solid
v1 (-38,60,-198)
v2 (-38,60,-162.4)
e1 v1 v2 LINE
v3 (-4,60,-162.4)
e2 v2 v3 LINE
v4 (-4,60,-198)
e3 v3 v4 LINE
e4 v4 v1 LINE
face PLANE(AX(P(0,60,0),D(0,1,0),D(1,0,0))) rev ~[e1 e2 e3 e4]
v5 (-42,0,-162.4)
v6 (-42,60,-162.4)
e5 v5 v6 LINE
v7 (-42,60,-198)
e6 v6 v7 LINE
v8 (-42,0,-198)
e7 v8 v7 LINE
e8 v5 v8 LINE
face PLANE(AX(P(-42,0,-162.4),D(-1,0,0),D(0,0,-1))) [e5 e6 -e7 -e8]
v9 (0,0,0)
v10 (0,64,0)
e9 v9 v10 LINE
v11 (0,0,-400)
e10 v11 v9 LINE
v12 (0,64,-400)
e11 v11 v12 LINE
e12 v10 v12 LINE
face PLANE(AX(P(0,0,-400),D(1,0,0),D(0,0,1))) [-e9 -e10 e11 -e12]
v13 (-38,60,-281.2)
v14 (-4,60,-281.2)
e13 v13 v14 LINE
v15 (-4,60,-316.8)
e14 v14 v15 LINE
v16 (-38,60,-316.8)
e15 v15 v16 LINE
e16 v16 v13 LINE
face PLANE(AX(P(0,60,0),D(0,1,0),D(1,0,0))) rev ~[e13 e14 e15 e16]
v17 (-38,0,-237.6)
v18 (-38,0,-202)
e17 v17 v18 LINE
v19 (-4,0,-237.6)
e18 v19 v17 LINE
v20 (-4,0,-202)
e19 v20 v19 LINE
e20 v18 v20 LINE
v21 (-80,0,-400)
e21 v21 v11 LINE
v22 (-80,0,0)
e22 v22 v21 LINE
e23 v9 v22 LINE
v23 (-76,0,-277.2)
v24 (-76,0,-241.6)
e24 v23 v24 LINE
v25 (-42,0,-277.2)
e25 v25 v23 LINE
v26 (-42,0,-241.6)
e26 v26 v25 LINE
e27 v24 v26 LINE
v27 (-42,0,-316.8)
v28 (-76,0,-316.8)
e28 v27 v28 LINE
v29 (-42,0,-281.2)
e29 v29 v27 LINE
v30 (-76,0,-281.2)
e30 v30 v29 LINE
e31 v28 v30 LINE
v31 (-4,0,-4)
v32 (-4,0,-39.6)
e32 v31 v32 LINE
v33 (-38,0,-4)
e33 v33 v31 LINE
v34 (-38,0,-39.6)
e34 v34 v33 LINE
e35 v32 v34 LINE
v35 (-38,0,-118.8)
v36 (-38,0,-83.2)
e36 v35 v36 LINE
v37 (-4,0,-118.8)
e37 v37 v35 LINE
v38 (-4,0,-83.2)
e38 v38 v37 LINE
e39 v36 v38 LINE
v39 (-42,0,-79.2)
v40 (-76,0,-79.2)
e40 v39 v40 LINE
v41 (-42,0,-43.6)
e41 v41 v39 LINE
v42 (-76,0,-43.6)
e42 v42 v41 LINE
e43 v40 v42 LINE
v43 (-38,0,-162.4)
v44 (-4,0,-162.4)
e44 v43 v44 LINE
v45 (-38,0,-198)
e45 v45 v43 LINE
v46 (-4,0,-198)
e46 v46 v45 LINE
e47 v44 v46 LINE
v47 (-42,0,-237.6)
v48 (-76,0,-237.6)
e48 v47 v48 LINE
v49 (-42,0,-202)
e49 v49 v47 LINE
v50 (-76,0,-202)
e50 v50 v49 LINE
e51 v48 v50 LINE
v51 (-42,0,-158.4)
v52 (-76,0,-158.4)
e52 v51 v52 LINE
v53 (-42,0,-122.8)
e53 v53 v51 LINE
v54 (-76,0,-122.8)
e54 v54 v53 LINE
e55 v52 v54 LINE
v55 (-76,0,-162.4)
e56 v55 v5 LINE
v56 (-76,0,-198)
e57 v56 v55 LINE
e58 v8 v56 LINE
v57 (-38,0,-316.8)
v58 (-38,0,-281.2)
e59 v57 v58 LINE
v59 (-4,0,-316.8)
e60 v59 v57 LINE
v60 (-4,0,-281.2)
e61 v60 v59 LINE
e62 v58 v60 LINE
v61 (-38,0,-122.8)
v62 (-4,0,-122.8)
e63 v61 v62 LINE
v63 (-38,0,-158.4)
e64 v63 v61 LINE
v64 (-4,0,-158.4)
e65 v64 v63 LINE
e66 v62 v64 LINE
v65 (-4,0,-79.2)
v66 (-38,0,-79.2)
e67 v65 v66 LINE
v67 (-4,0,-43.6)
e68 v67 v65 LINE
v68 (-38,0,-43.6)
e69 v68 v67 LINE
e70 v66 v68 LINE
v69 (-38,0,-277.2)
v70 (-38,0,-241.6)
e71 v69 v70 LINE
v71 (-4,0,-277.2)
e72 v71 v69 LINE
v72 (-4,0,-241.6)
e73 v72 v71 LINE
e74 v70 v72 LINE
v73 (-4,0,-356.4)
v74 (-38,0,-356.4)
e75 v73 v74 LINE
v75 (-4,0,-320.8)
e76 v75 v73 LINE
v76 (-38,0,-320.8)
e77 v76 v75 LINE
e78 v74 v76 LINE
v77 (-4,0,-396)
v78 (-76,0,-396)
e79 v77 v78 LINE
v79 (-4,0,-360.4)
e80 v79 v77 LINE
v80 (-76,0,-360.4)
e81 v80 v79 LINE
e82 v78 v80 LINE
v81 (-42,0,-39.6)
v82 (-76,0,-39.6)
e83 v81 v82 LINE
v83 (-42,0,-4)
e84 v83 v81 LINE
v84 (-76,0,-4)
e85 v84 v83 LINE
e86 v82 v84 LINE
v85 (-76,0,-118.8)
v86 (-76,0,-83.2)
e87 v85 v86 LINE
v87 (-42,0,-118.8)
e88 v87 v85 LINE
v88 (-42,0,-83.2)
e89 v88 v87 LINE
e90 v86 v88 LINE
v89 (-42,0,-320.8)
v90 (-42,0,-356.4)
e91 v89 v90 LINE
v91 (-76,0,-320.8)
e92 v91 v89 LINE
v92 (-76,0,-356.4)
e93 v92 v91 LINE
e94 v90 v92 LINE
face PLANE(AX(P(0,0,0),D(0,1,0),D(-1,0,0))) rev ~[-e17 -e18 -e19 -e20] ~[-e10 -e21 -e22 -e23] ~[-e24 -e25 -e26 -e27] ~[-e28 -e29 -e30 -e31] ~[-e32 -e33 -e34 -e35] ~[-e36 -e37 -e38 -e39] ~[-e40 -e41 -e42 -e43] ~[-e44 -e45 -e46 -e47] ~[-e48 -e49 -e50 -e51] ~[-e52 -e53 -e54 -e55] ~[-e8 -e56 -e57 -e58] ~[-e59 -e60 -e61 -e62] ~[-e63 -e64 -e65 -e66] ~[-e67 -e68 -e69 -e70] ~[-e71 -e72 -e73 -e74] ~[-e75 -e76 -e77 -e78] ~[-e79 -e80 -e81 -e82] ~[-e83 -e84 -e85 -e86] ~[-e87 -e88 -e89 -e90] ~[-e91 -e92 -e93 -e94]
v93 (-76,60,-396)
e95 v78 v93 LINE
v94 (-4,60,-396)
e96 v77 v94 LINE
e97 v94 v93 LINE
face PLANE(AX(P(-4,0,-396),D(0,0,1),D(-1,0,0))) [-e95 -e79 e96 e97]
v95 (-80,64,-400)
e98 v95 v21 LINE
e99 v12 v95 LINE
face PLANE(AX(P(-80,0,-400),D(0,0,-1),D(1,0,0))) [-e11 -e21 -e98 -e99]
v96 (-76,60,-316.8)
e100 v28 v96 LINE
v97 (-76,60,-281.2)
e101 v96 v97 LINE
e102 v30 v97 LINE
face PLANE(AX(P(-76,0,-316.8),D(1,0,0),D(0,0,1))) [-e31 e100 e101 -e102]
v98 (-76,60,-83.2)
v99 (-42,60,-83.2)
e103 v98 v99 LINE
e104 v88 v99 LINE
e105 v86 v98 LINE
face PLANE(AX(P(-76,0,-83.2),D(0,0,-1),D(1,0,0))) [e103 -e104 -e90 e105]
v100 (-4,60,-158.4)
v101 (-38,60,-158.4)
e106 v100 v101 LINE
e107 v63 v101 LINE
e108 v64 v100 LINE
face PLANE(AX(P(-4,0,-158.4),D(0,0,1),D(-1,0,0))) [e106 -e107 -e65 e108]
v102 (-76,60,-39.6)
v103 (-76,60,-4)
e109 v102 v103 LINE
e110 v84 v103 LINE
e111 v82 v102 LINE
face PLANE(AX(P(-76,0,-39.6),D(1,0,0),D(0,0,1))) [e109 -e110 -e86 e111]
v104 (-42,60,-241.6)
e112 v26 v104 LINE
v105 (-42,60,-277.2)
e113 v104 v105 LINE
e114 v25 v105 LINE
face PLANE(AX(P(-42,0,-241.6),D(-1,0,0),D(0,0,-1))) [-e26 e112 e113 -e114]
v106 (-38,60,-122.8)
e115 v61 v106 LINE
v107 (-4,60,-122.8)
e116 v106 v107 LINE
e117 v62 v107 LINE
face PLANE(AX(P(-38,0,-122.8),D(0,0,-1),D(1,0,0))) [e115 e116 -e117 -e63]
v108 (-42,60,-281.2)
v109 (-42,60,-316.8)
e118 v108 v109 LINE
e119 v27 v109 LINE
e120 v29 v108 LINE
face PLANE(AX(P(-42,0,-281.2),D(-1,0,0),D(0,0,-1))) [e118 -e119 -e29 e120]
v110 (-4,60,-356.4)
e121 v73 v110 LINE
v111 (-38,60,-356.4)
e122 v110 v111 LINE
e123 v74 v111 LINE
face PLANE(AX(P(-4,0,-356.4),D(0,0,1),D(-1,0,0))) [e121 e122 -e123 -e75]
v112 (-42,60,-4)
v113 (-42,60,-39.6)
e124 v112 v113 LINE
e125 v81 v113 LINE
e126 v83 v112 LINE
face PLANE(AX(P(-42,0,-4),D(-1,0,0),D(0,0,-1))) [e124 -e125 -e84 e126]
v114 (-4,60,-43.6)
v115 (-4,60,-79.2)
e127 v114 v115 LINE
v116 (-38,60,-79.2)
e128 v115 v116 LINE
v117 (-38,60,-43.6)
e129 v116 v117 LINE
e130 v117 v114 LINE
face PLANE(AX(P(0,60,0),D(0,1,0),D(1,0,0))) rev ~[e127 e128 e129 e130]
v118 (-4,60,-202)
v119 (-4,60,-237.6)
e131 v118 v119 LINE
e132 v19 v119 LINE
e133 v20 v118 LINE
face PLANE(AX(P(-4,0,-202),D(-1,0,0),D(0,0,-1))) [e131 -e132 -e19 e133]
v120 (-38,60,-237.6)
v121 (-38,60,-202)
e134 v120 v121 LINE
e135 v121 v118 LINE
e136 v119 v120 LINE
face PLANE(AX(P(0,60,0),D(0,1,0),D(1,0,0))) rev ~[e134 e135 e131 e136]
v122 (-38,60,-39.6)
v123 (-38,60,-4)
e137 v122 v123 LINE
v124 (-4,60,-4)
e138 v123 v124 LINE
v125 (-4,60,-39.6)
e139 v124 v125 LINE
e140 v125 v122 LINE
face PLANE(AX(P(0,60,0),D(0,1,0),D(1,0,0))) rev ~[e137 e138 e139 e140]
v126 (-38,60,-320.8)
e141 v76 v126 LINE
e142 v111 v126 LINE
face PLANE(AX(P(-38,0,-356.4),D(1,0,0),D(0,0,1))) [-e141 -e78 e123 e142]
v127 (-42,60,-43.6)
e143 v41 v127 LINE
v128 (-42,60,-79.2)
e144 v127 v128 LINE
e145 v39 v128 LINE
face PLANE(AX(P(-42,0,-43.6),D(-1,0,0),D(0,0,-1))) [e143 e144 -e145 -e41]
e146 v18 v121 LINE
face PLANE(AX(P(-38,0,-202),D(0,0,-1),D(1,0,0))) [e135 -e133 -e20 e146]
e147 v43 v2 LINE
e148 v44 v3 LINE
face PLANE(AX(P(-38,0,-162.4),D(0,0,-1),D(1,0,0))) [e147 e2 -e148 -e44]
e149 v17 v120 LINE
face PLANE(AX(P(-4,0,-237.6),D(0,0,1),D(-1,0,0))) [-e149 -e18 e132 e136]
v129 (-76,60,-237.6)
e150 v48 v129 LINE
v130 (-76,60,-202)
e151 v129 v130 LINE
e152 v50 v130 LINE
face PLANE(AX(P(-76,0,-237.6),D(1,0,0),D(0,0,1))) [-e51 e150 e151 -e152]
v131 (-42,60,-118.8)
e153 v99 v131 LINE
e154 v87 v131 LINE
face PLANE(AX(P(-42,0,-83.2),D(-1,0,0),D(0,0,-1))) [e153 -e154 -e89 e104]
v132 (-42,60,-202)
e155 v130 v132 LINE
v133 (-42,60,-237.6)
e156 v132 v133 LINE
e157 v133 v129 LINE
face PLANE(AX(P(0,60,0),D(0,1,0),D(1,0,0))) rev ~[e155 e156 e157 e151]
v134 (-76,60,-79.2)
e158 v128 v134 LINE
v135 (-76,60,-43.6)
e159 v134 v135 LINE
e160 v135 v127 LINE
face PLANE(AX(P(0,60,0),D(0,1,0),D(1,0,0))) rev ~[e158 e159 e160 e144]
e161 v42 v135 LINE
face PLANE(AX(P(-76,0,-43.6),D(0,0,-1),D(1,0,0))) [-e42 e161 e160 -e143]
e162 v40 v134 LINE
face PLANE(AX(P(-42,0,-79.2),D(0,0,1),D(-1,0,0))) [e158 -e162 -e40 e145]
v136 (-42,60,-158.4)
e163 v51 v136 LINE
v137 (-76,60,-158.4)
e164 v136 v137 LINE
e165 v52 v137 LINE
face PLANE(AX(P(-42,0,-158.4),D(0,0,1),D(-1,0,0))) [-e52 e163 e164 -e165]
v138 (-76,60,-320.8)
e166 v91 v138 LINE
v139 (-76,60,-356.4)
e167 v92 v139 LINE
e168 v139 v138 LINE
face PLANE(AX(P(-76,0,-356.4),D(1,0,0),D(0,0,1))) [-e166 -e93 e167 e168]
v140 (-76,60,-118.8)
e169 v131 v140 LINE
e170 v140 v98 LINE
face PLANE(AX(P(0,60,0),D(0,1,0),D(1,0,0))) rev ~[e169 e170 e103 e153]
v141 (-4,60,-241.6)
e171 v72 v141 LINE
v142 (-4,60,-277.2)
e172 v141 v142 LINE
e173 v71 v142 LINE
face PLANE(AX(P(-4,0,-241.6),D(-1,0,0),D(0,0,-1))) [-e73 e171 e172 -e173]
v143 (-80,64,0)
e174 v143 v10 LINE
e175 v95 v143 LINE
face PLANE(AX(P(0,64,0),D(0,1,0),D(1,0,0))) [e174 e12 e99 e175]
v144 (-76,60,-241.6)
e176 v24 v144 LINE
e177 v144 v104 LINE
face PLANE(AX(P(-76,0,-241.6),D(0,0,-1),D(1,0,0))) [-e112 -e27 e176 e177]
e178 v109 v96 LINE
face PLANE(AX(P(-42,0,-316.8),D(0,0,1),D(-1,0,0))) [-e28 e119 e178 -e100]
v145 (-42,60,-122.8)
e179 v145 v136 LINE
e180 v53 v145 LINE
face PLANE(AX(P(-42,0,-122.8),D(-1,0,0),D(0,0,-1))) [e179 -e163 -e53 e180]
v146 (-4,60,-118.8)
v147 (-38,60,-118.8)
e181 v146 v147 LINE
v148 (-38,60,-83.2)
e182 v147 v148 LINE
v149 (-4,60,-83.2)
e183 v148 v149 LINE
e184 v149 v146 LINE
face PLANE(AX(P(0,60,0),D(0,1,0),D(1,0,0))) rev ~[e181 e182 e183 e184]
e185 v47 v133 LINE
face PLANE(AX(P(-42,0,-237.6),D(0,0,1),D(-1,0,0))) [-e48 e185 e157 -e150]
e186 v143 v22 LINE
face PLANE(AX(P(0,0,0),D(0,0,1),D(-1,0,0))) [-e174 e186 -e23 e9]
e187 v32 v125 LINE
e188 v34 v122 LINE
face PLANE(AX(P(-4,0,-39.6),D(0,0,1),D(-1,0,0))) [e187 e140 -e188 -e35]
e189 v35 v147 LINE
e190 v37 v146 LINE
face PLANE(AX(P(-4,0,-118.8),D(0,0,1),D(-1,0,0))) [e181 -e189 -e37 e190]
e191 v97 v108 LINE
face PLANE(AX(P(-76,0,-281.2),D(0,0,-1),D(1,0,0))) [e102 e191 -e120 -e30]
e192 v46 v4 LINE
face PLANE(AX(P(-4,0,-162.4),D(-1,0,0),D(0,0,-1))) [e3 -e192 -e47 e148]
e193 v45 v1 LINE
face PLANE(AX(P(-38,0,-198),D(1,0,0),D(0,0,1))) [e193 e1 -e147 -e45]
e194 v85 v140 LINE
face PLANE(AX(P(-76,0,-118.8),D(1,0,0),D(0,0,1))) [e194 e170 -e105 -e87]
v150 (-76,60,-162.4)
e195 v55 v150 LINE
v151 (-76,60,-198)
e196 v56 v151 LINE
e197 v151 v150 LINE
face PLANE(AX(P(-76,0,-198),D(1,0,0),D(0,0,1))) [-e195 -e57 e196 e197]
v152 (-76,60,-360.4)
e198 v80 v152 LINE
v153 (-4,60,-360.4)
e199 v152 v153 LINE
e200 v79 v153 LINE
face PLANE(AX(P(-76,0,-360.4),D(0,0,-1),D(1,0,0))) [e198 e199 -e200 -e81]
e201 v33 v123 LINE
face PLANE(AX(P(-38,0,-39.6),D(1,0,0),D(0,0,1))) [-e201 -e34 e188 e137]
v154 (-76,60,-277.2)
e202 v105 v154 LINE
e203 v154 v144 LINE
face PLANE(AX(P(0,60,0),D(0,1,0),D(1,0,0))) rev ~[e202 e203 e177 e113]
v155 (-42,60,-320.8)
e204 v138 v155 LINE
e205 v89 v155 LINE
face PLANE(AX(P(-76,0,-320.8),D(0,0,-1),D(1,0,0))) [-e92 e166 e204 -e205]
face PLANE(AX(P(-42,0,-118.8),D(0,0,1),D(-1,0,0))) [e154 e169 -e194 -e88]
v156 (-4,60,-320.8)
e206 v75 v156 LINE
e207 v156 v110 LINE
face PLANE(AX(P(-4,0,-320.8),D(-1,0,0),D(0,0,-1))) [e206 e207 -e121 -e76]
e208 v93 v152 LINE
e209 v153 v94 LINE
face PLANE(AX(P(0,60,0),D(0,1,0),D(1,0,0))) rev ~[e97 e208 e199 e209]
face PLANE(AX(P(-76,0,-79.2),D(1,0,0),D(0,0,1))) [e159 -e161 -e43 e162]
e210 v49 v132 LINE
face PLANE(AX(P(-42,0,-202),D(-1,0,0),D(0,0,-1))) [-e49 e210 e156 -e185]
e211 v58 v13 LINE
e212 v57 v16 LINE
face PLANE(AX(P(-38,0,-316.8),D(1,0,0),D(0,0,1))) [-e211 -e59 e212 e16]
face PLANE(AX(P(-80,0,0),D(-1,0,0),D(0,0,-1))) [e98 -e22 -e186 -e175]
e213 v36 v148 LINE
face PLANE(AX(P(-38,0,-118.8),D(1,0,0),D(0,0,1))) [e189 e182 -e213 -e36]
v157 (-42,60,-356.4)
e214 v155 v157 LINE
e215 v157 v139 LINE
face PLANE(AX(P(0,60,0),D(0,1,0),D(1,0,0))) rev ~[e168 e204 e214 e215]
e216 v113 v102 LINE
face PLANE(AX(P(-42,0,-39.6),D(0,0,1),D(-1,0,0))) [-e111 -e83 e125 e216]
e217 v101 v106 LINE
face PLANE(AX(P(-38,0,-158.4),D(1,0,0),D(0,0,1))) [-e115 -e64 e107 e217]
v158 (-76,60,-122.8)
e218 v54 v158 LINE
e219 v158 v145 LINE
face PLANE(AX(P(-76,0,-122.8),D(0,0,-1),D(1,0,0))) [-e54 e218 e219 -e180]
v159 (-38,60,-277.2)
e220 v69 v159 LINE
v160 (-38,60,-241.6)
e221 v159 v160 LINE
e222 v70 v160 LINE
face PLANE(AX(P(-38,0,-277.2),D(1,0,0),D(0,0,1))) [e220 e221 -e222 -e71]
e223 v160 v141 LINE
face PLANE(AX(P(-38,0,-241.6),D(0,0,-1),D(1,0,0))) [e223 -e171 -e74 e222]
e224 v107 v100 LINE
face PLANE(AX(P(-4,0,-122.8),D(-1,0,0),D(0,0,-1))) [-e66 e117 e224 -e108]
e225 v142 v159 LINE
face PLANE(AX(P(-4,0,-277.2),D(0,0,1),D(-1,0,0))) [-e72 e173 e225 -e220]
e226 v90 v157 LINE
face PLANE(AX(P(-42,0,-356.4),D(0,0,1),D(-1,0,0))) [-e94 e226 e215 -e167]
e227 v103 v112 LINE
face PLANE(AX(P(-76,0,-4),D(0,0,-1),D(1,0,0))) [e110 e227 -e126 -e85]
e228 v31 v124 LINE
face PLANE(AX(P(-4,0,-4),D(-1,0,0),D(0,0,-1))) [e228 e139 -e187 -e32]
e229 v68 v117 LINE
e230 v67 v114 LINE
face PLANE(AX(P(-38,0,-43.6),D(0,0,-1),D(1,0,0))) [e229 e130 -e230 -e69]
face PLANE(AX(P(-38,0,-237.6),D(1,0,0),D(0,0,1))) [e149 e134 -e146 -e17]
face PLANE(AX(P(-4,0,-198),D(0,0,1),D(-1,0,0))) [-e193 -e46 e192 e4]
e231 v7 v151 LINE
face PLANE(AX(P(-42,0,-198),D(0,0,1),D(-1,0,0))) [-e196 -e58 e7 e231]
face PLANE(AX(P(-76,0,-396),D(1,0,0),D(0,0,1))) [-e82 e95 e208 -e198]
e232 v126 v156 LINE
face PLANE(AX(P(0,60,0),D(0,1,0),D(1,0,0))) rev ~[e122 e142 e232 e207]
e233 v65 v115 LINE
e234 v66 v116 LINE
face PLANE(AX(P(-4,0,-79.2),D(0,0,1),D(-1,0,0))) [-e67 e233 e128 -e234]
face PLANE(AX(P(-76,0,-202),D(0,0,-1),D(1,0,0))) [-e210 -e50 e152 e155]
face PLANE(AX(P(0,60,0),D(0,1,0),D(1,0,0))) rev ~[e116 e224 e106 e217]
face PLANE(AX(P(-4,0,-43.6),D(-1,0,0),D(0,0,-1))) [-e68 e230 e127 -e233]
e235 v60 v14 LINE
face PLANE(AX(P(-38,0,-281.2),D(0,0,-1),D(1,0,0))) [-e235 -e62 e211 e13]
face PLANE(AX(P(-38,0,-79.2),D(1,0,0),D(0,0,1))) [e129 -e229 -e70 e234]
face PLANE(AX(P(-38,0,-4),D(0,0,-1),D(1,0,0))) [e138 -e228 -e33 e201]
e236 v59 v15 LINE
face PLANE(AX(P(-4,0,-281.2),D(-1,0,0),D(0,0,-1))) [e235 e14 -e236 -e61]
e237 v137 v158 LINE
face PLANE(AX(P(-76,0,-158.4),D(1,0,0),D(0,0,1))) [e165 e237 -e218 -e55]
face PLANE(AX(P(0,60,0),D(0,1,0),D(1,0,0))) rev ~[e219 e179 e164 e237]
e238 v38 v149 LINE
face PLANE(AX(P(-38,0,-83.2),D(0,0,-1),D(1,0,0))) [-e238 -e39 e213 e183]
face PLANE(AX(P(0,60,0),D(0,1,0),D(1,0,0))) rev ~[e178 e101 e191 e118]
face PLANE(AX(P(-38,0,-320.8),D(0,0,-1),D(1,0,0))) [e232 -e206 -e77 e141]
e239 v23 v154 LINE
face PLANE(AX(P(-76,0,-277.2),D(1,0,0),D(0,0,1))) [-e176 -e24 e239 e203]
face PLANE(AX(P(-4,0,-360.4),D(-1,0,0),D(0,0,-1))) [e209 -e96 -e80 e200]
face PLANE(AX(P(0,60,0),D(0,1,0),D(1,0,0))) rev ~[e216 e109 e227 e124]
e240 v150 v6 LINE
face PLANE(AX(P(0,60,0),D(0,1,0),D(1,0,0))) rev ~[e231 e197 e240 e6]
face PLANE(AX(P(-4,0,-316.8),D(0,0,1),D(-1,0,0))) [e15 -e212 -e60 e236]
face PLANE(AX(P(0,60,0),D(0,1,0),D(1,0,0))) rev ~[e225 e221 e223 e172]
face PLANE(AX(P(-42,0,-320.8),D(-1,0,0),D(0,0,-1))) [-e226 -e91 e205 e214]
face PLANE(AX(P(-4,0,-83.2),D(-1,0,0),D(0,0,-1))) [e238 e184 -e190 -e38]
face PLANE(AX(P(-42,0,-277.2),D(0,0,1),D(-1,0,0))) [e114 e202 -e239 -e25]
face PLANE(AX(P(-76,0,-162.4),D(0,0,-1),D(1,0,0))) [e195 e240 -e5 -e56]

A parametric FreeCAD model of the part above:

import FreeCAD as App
import Part
import Sketcher

V = App.Vector

doc = App.newDocument("Part")
body = doc.addObject("PartDesign::Body", "Body")

sketch1 = body.newObject("Sketcher::SketchObject", "Sketch")
sketch1.AttachmentSupport = (doc.getObject("XZ_Plane"), [""])
sketch1.MapMode = "FlatFace"
sketch1.addGeometry(Part.LineSegment(V(-80, 0, 0), V(0, 0, 0)), False)
sketch1.addGeometry(Part.LineSegment(V(0, 0, 0), V(0, -400, 0)), False)
sketch1.addGeometry(Part.LineSegment(V(0, -400, 0), V(-80, -400, 0)), False)
sketch1.addGeometry(Part.LineSegment(V(-80, -400, 0), V(-80, 0, 0)), False)
sketch1.addGeometry(Part.LineSegment(V(-4, -321, 0), V(-38, -321, 0)), False)
sketch1.addGeometry(Part.LineSegment(V(-38, -321, 0), V(-38, -356, 0)), False)
sketch1.addGeometry(Part.LineSegment(V(-38, -356, 0), V(-4, -356, 0)), False)
sketch1.addGeometry(Part.LineSegment(V(-4, -356, 0), V(-4, -321, 0)), False)
sketch1.addGeometry(Part.LineSegment(V(-4, -281, 0), V(-38, -281, 0)), False)
sketch1.addGeometry(Part.LineSegment(V(-38, -281, 0), V(-38, -317, 0)), False)
sketch1.addGeometry(Part.LineSegment(V(-38, -317, 0), V(-4, -317, 0)), False)
sketch1.addGeometry(Part.LineSegment(V(-4, -317, 0), V(-4, -281, 0)), False)
sketch1.addGeometry(Part.LineSegment(V(-4, -242, 0), V(-38, -242, 0)), False)
sketch1.addGeometry(Part.LineSegment(V(-38, -242, 0), V(-38, -277, 0)), False)
sketch1.addGeometry(Part.LineSegment(V(-38, -277, 0), V(-4, -277, 0)), False)
sketch1.addGeometry(Part.LineSegment(V(-4, -277, 0), V(-4, -242, 0)), False)
sketch1.addGeometry(Part.LineSegment(V(-4, -202, 0), V(-38, -202, 0)), False)
sketch1.addGeometry(Part.LineSegment(V(-38, -202, 0), V(-38, -238, 0)), False)
sketch1.addGeometry(Part.LineSegment(V(-38, -238, 0), V(-4, -238, 0)), False)
sketch1.addGeometry(Part.LineSegment(V(-4, -238, 0), V(-4, -202, 0)), False)
sketch1.addGeometry(Part.LineSegment(V(-4, -360, 0), V(-76, -360, 0)), False)
sketch1.addGeometry(Part.LineSegment(V(-76, -360, 0), V(-76, -396, 0)), False)
sketch1.addGeometry(Part.LineSegment(V(-76, -396, 0), V(-4, -396, 0)), False)
sketch1.addGeometry(Part.LineSegment(V(-4, -396, 0), V(-4, -360, 0)), False)
sketch1.addGeometry(Part.LineSegment(V(-42, -321, 0), V(-76, -321, 0)), False)
sketch1.addGeometry(Part.LineSegment(V(-76, -321, 0), V(-76, -356, 0)), False)
sketch1.addGeometry(Part.LineSegment(V(-76, -356, 0), V(-42, -356, 0)), False)
sketch1.addGeometry(Part.LineSegment(V(-42, -356, 0), V(-42, -321, 0)), False)
sketch1.addGeometry(Part.LineSegment(V(-42, -281, 0), V(-76, -281, 0)), False)
sketch1.addGeometry(Part.LineSegment(V(-76, -281, 0), V(-76, -317, 0)), False)
sketch1.addGeometry(Part.LineSegment(V(-76, -317, 0), V(-42, -317, 0)), False)
sketch1.addGeometry(Part.LineSegment(V(-42, -317, 0), V(-42, -281, 0)), False)
sketch1.addGeometry(Part.LineSegment(V(-42, -242, 0), V(-76, -242, 0)), False)
sketch1.addGeometry(Part.LineSegment(V(-76, -242, 0), V(-76, -277, 0)), False)
sketch1.addGeometry(Part.LineSegment(V(-76, -277, 0), V(-42, -277, 0)), False)
sketch1.addGeometry(Part.LineSegment(V(-42, -277, 0), V(-42, -242, 0)), False)
sketch1.addGeometry(Part.LineSegment(V(-42, -202, 0), V(-76, -202, 0)), False)
sketch1.addGeometry(Part.LineSegment(V(-76, -202, 0), V(-76, -238, 0)), False)
sketch1.addGeometry(Part.LineSegment(V(-76, -238, 0), V(-42, -238, 0)), False)
sketch1.addGeometry(Part.LineSegment(V(-42, -238, 0), V(-42, -202, 0)), False)
sketch1.addGeometry(Part.LineSegment(V(-4, -162, 0), V(-38, -162, 0)), False)
sketch1.addGeometry(Part.LineSegment(V(-38, -162, 0), V(-38, -198, 0)), False)
sketch1.addGeometry(Part.LineSegment(V(-38, -198, 0), V(-4, -198, 0)), False)
sketch1.addGeometry(Part.LineSegment(V(-4, -198, 0), V(-4, -162, 0)), False)
sketch1.addGeometry(Part.LineSegment(V(-4, -123, 0), V(-38, -123, 0)), False)
sketch1.addGeometry(Part.LineSegment(V(-38, -123, 0), V(-38, -158, 0)), False)
sketch1.addGeometry(Part.LineSegment(V(-38, -158, 0), V(-4, -158, 0)), False)
sketch1.addGeometry(Part.LineSegment(V(-4, -158, 0), V(-4, -123, 0)), False)
sketch1.addGeometry(Part.LineSegment(V(-4, -83, 0), V(-38, -83, 0)), False)
sketch1.addGeometry(Part.LineSegment(V(-38, -83, 0), V(-38, -119, 0)), False)
sketch1.addGeometry(Part.LineSegment(V(-38, -119, 0), V(-4, -119, 0)), False)
sketch1.addGeometry(Part.LineSegment(V(-4, -119, 0), V(-4, -83, 0)), False)
sketch1.addGeometry(Part.LineSegment(V(-4, -44, 0), V(-38, -44, 0)), False)
sketch1.addGeometry(Part.LineSegment(V(-38, -44, 0), V(-38, -79, 0)), False)
sketch1.addGeometry(Part.LineSegment(V(-38, -79, 0), V(-4, -79, 0)), False)
sketch1.addGeometry(Part.LineSegment(V(-4, -79, 0), V(-4, -44, 0)), False)
sketch1.addGeometry(Part.LineSegment(V(-4, -4, 0), V(-38, -4, 0)), False)
sketch1.addGeometry(Part.LineSegment(V(-38, -4, 0), V(-38, -40, 0)), False)
sketch1.addGeometry(Part.LineSegment(V(-38, -40, 0), V(-4, -40, 0)), False)
sketch1.addGeometry(Part.LineSegment(V(-4, -40, 0), V(-4, -4, 0)), False)
sketch1.addGeometry(Part.LineSegment(V(-42, -162, 0), V(-76, -162, 0)), False)
sketch1.addGeometry(Part.LineSegment(V(-76, -162, 0), V(-76, -198, 0)), False)
sketch1.addGeometry(Part.LineSegment(V(-76, -198, 0), V(-42, -198, 0)), False)
sketch1.addGeometry(Part.LineSegment(V(-42, -198, 0), V(-42, -162, 0)), False)
sketch1.addGeometry(Part.LineSegment(V(-42, -123, 0), V(-76, -123, 0)), False)
sketch1.addGeometry(Part.LineSegment(V(-76, -123, 0), V(-76, -158, 0)), False)
sketch1.addGeometry(Part.LineSegment(V(-76, -158, 0), V(-42, -158, 0)), False)
sketch1.addGeometry(Part.LineSegment(V(-42, -158, 0), V(-42, -123, 0)), False)
sketch1.addGeometry(Part.LineSegment(V(-42, -83, 0), V(-76, -83, 0)), False)
sketch1.addGeometry(Part.LineSegment(V(-76, -83, 0), V(-76, -119, 0)), False)
sketch1.addGeometry(Part.LineSegment(V(-76, -119, 0), V(-42, -119, 0)), False)
sketch1.addGeometry(Part.LineSegment(V(-42, -119, 0), V(-42, -83, 0)), False)
sketch1.addGeometry(Part.LineSegment(V(-42, -44, 0), V(-76, -44, 0)), False)
sketch1.addGeometry(Part.LineSegment(V(-76, -44, 0), V(-76, -79, 0)), False)
sketch1.addGeometry(Part.LineSegment(V(-76, -79, 0), V(-42, -79, 0)), False)
sketch1.addGeometry(Part.LineSegment(V(-42, -79, 0), V(-42, -44, 0)), False)
sketch1.addGeometry(Part.LineSegment(V(-42, -4, 0), V(-76, -4, 0)), False)
sketch1.addGeometry(Part.LineSegment(V(-76, -4, 0), V(-76, -40, 0)), False)
sketch1.addGeometry(Part.LineSegment(V(-76, -40, 0), V(-42, -40, 0)), False)
sketch1.addGeometry(Part.LineSegment(V(-42, -40, 0), V(-42, -4, 0)), False)
sketch1.addConstraint(Sketcher.Constraint("Coincident", 0, 2, 1, 1))
sketch1.addConstraint(Sketcher.Constraint("Coincident", 1, 2, 2, 1))
sketch1.addConstraint(Sketcher.Constraint("Coincident", 2, 2, 3, 1))
sketch1.addConstraint(Sketcher.Constraint("Coincident", 3, 2, 0, 1))
sketch1.addConstraint(Sketcher.Constraint("Coincident", 4, 2, 5, 1))
sketch1.addConstraint(Sketcher.Constraint("Coincident", 5, 2, 6, 1))
sketch1.addConstraint(Sketcher.Constraint("Coincident", 6, 2, 7, 1))
sketch1.addConstraint(Sketcher.Constraint("Coincident", 7, 2, 4, 1))
sketch1.addConstraint(Sketcher.Constraint("Coincident", 8, 2, 9, 1))
sketch1.addConstraint(Sketcher.Constraint("Coincident", 9, 2, 10, 1))
sketch1.addConstraint(Sketcher.Constraint("Coincident", 10, 2, 11, 1))
sketch1.addConstraint(Sketcher.Constraint("Coincident", 11, 2, 8, 1))
sketch1.addConstraint(Sketcher.Constraint("Coincident", 12, 2, 13, 1))
sketch1.addConstraint(Sketcher.Constraint("Coincident", 13, 2, 14, 1))
sketch1.addConstraint(Sketcher.Constraint("Coincident", 14, 2, 15, 1))
sketch1.addConstraint(Sketcher.Constraint("Coincident", 15, 2, 12, 1))
sketch1.addConstraint(Sketcher.Constraint("Coincident", 16, 2, 17, 1))
sketch1.addConstraint(Sketcher.Constraint("Coincident", 17, 2, 18, 1))
sketch1.addConstraint(Sketcher.Constraint("Coincident", 18, 2, 19, 1))
sketch1.addConstraint(Sketcher.Constraint("Coincident", 19, 2, 16, 1))
sketch1.addConstraint(Sketcher.Constraint("Coincident", 20, 2, 21, 1))
sketch1.addConstraint(Sketcher.Constraint("Coincident", 21, 2, 22, 1))
sketch1.addConstraint(Sketcher.Constraint("Coincident", 22, 2, 23, 1))
sketch1.addConstraint(Sketcher.Constraint("Coincident", 23, 2, 20, 1))
sketch1.addConstraint(Sketcher.Constraint("Coincident", 24, 2, 25, 1))
sketch1.addConstraint(Sketcher.Constraint("Coincident", 25, 2, 26, 1))
sketch1.addConstraint(Sketcher.Constraint("Coincident", 26, 2, 27, 1))
sketch1.addConstraint(Sketcher.Constraint("Coincident", 27, 2, 24, 1))
sketch1.addConstraint(Sketcher.Constraint("Coincident", 28, 2, 29, 1))
sketch1.addConstraint(Sketcher.Constraint("Coincident", 29, 2, 30, 1))
sketch1.addConstraint(Sketcher.Constraint("Coincident", 30, 2, 31, 1))
sketch1.addConstraint(Sketcher.Constraint("Coincident", 31, 2, 28, 1))
sketch1.addConstraint(Sketcher.Constraint("Coincident", 32, 2, 33, 1))
sketch1.addConstraint(Sketcher.Constraint("Coincident", 33, 2, 34, 1))
sketch1.addConstraint(Sketcher.Constraint("Coincident", 34, 2, 35, 1))
sketch1.addConstraint(Sketcher.Constraint("Coincident", 35, 2, 32, 1))
sketch1.addConstraint(Sketcher.Constraint("Coincident", 36, 2, 37, 1))
sketch1.addConstraint(Sketcher.Constraint("Coincident", 37, 2, 38, 1))
sketch1.addConstraint(Sketcher.Constraint("Coincident", 38, 2, 39, 1))
sketch1.addConstraint(Sketcher.Constraint("Coincident", 39, 2, 36, 1))
sketch1.addConstraint(Sketcher.Constraint("Coincident", 40, 2, 41, 1))
sketch1.addConstraint(Sketcher.Constraint("Coincident", 41, 2, 42, 1))
sketch1.addConstraint(Sketcher.Constraint("Coincident", 42, 2, 43, 1))
sketch1.addConstraint(Sketcher.Constraint("Coincident", 43, 2, 40, 1))
sketch1.addConstraint(Sketcher.Constraint("Coincident", 44, 2, 45, 1))
sketch1.addConstraint(Sketcher.Constraint("Coincident", 45, 2, 46, 1))
sketch1.addConstraint(Sketcher.Constraint("Coincident", 46, 2, 47, 1))
sketch1.addConstraint(Sketcher.Constraint("Coincident", 47, 2, 44, 1))
sketch1.addConstraint(Sketcher.Constraint("Coincident", 48, 2, 49, 1))
sketch1.addConstraint(Sketcher.Constraint("Coincident", 49, 2, 50, 1))
sketch1.addConstraint(Sketcher.Constraint("Coincident", 50, 2, 51, 1))
sketch1.addConstraint(Sketcher.Constraint("Coincident", 51, 2, 48, 1))
sketch1.addConstraint(Sketcher.Constraint("Coincident", 52, 2, 53, 1))
sketch1.addConstraint(Sketcher.Constraint("Coincident", 53, 2, 54, 1))
sketch1.addConstraint(Sketcher.Constraint("Coincident", 54, 2, 55, 1))
sketch1.addConstraint(Sketcher.Constraint("Coincident", 55, 2, 52, 1))
sketch1.addConstraint(Sketcher.Constraint("Coincident", 56, 2, 57, 1))
sketch1.addConstraint(Sketcher.Constraint("Coincident", 57, 2, 58, 1))
sketch1.addConstraint(Sketcher.Constraint("Coincident", 58, 2, 59, 1))
sketch1.addConstraint(Sketcher.Constraint("Coincident", 59, 2, 56, 1))
sketch1.addConstraint(Sketcher.Constraint("Coincident", 60, 2, 61, 1))
sketch1.addConstraint(Sketcher.Constraint("Coincident", 61, 2, 62, 1))
sketch1.addConstraint(Sketcher.Constraint("Coincident", 62, 2, 63, 1))
sketch1.addConstraint(Sketcher.Constraint("Coincident", 63, 2, 60, 1))
sketch1.addConstraint(Sketcher.Constraint("Coincident", 64, 2, 65, 1))
sketch1.addConstraint(Sketcher.Constraint("Coincident", 65, 2, 66, 1))
sketch1.addConstraint(Sketcher.Constraint("Coincident", 66, 2, 67, 1))
sketch1.addConstraint(Sketcher.Constraint("Coincident", 67, 2, 64, 1))
sketch1.addConstraint(Sketcher.Constraint("Coincident", 68, 2, 69, 1))
sketch1.addConstraint(Sketcher.Constraint("Coincident", 69, 2, 70, 1))
sketch1.addConstraint(Sketcher.Constraint("Coincident", 70, 2, 71, 1))
sketch1.addConstraint(Sketcher.Constraint("Coincident", 71, 2, 68, 1))
sketch1.addConstraint(Sketcher.Constraint("Coincident", 72, 2, 73, 1))
sketch1.addConstraint(Sketcher.Constraint("Coincident", 73, 2, 74, 1))
sketch1.addConstraint(Sketcher.Constraint("Coincident", 74, 2, 75, 1))
sketch1.addConstraint(Sketcher.Constraint("Coincident", 75, 2, 72, 1))
sketch1.addConstraint(Sketcher.Constraint("Coincident", 76, 2, 77, 1))
sketch1.addConstraint(Sketcher.Constraint("Coincident", 77, 2, 78, 1))
sketch1.addConstraint(Sketcher.Constraint("Coincident", 78, 2, 79, 1))
sketch1.addConstraint(Sketcher.Constraint("Coincident", 79, 2, 76, 1))
sketch1.addConstraint(Sketcher.Constraint("Horizontal", 0))
sketch1.addConstraint(Sketcher.Constraint("Vertical", 1))
sketch1.addConstraint(Sketcher.Constraint("Horizontal", 2))
sketch1.addConstraint(Sketcher.Constraint("Vertical", 3))
sketch1.addConstraint(Sketcher.Constraint("Horizontal", 4))
sketch1.addConstraint(Sketcher.Constraint("Vertical", 5))
sketch1.addConstraint(Sketcher.Constraint("Horizontal", 6))
sketch1.addConstraint(Sketcher.Constraint("Vertical", 7))
sketch1.addConstraint(Sketcher.Constraint("Horizontal", 8))
sketch1.addConstraint(Sketcher.Constraint("Vertical", 9))
sketch1.addConstraint(Sketcher.Constraint("Horizontal", 10))
sketch1.addConstraint(Sketcher.Constraint("Vertical", 11))
sketch1.addConstraint(Sketcher.Constraint("Horizontal", 12))
sketch1.addConstraint(Sketcher.Constraint("Vertical", 13))
sketch1.addConstraint(Sketcher.Constraint("Horizontal", 14))
sketch1.addConstraint(Sketcher.Constraint("Vertical", 15))
sketch1.addConstraint(Sketcher.Constraint("Horizontal", 16))
sketch1.addConstraint(Sketcher.Constraint("Vertical", 17))
sketch1.addConstraint(Sketcher.Constraint("Horizontal", 18))
sketch1.addConstraint(Sketcher.Constraint("Vertical", 19))
sketch1.addConstraint(Sketcher.Constraint("Horizontal", 20))
sketch1.addConstraint(Sketcher.Constraint("Vertical", 21))
sketch1.addConstraint(Sketcher.Constraint("Horizontal", 22))
sketch1.addConstraint(Sketcher.Constraint("Vertical", 23))
sketch1.addConstraint(Sketcher.Constraint("Horizontal", 24))
sketch1.addConstraint(Sketcher.Constraint("Vertical", 25))
sketch1.addConstraint(Sketcher.Constraint("Horizontal", 26))
sketch1.addConstraint(Sketcher.Constraint("Vertical", 27))
sketch1.addConstraint(Sketcher.Constraint("Horizontal", 28))
sketch1.addConstraint(Sketcher.Constraint("Vertical", 29))
sketch1.addConstraint(Sketcher.Constraint("Horizontal", 30))
sketch1.addConstraint(Sketcher.Constraint("Vertical", 31))
sketch1.addConstraint(Sketcher.Constraint("Horizontal", 32))
sketch1.addConstraint(Sketcher.Constraint("Vertical", 33))
sketch1.addConstraint(Sketcher.Constraint("Horizontal", 34))
sketch1.addConstraint(Sketcher.Constraint("Vertical", 35))
sketch1.addConstraint(Sketcher.Constraint("Horizontal", 36))
sketch1.addConstraint(Sketcher.Constraint("Vertical", 37))
sketch1.addConstraint(Sketcher.Constraint("Horizontal", 38))
sketch1.addConstraint(Sketcher.Constraint("Vertical", 39))
sketch1.addConstraint(Sketcher.Constraint("Horizontal", 40))
sketch1.addConstraint(Sketcher.Constraint("Vertical", 41))
sketch1.addConstraint(Sketcher.Constraint("Horizontal", 42))
sketch1.addConstraint(Sketcher.Constraint("Vertical", 43))
sketch1.addConstraint(Sketcher.Constraint("Horizontal", 44))
sketch1.addConstraint(Sketcher.Constraint("Vertical", 45))
sketch1.addConstraint(Sketcher.Constraint("Horizontal", 46))
sketch1.addConstraint(Sketcher.Constraint("Vertical", 47))
sketch1.addConstraint(Sketcher.Constraint("Horizontal", 48))
sketch1.addConstraint(Sketcher.Constraint("Vertical", 49))
sketch1.addConstraint(Sketcher.Constraint("Horizontal", 50))
sketch1.addConstraint(Sketcher.Constraint("Vertical", 51))
sketch1.addConstraint(Sketcher.Constraint("Horizontal", 52))
sketch1.addConstraint(Sketcher.Constraint("Vertical", 53))
sketch1.addConstraint(Sketcher.Constraint("Horizontal", 54))
sketch1.addConstraint(Sketcher.Constraint("Vertical", 55))
sketch1.addConstraint(Sketcher.Constraint("Horizontal", 56))
sketch1.addConstraint(Sketcher.Constraint("Vertical", 57))
sketch1.addConstraint(Sketcher.Constraint("Horizontal", 58))
sketch1.addConstraint(Sketcher.Constraint("Vertical", 59))
sketch1.addConstraint(Sketcher.Constraint("Horizontal", 60))
sketch1.addConstraint(Sketcher.Constraint("Vertical", 61))
sketch1.addConstraint(Sketcher.Constraint("Horizontal", 62))
sketch1.addConstraint(Sketcher.Constraint("Vertical", 63))
sketch1.addConstraint(Sketcher.Constraint("Horizontal", 64))
sketch1.addConstraint(Sketcher.Constraint("Vertical", 65))
sketch1.addConstraint(Sketcher.Constraint("Horizontal", 66))
sketch1.addConstraint(Sketcher.Constraint("Vertical", 67))
sketch1.addConstraint(Sketcher.Constraint("Horizontal", 68))
sketch1.addConstraint(Sketcher.Constraint("Vertical", 69))
sketch1.addConstraint(Sketcher.Constraint("Horizontal", 70))
sketch1.addConstraint(Sketcher.Constraint("Vertical", 71))
sketch1.addConstraint(Sketcher.Constraint("Horizontal", 72))
sketch1.addConstraint(Sketcher.Constraint("Vertical", 73))
sketch1.addConstraint(Sketcher.Constraint("Horizontal", 74))
sketch1.addConstraint(Sketcher.Constraint("Vertical", 75))
sketch1.addConstraint(Sketcher.Constraint("Horizontal", 76))
sketch1.addConstraint(Sketcher.Constraint("Vertical", 77))
sketch1.addConstraint(Sketcher.Constraint("Horizontal", 78))
sketch1.addConstraint(Sketcher.Constraint("Vertical", 79))
sketch1.addConstraint(Sketcher.Constraint("Coincident", 0, 2, -1, 1))
sketch1.addConstraint(Sketcher.Constraint("Horizontal", 7, 2, 24, 2))
sketch1.addConstraint(Sketcher.Constraint("Horizontal", 6, 2, 25, 2))
sketch1.addConstraint(Sketcher.Constraint("Horizontal", 11, 2, 28, 2))
sketch1.addConstraint(Sketcher.Constraint("Horizontal", 10, 2, 29, 2))
sketch1.addConstraint(Sketcher.Constraint("Horizontal", 15, 2, 32, 2))
sketch1.addConstraint(Sketcher.Constraint("Horizontal", 14, 2, 33, 2))
sketch1.addConstraint(Sketcher.Constraint("Horizontal", 19, 2, 36, 2))
sketch1.addConstraint(Sketcher.Constraint("Horizontal", 18, 2, 37, 2))
sketch1.addConstraint(Sketcher.Constraint("Horizontal", 43, 2, 60, 2))
sketch1.addConstraint(Sketcher.Constraint("Horizontal", 42, 2, 61, 2))
sketch1.addConstraint(Sketcher.Constraint("Horizontal", 47, 2, 64, 2))
sketch1.addConstraint(Sketcher.Constraint("Horizontal", 46, 2, 65, 2))
sketch1.addConstraint(Sketcher.Constraint("Horizontal", 51, 2, 68, 2))
sketch1.addConstraint(Sketcher.Constraint("Horizontal", 50, 2, 69, 2))
sketch1.addConstraint(Sketcher.Constraint("Horizontal", 55, 2, 72, 2))
sketch1.addConstraint(Sketcher.Constraint("Horizontal", 54, 2, 73, 2))
sketch1.addConstraint(Sketcher.Constraint("Horizontal", 59, 2, 76, 2))
sketch1.addConstraint(Sketcher.Constraint("Horizontal", 58, 2, 77, 2))
sketch1.addConstraint(Sketcher.Constraint("Vertical", 5, 2, 8, 2))
sketch1.addConstraint(Sketcher.Constraint("Vertical", 7, 2, 10, 2))
sketch1.addConstraint(Sketcher.Constraint("Vertical", 9, 2, 12, 2))
sketch1.addConstraint(Sketcher.Constraint("Vertical", 11, 2, 14, 2))
sketch1.addConstraint(Sketcher.Constraint("Vertical", 13, 2, 16, 2))
sketch1.addConstraint(Sketcher.Constraint("Vertical", 15, 2, 18, 2))
sketch1.addConstraint(Sketcher.Constraint("Vertical", 19, 2, 22, 2))
sketch1.addConstraint(Sketcher.Constraint("Vertical", 21, 2, 24, 2))
sketch1.addConstraint(Sketcher.Constraint("Vertical", 25, 2, 28, 2))
sketch1.addConstraint(Sketcher.Constraint("Vertical", 27, 2, 30, 2))
sketch1.addConstraint(Sketcher.Constraint("Vertical", 29, 2, 32, 2))
sketch1.addConstraint(Sketcher.Constraint("Vertical", 31, 2, 34, 2))
sketch1.addConstraint(Sketcher.Constraint("Vertical", 33, 2, 36, 2))
sketch1.addConstraint(Sketcher.Constraint("Vertical", 35, 2, 38, 2))
sketch1.addConstraint(Sketcher.Constraint("Vertical", 17, 2, 40, 2))
sketch1.addConstraint(Sketcher.Constraint("Vertical", 23, 2, 42, 2))
sketch1.addConstraint(Sketcher.Constraint("Vertical", 41, 2, 44, 2))
sketch1.addConstraint(Sketcher.Constraint("Vertical", 43, 2, 46, 2))
sketch1.addConstraint(Sketcher.Constraint("Vertical", 45, 2, 48, 2))
sketch1.addConstraint(Sketcher.Constraint("Vertical", 47, 2, 50, 2))
sketch1.addConstraint(Sketcher.Constraint("Vertical", 49, 2, 52, 2))
sketch1.addConstraint(Sketcher.Constraint("Vertical", 51, 2, 54, 2))
sketch1.addConstraint(Sketcher.Constraint("Vertical", 53, 2, 56, 2))
sketch1.addConstraint(Sketcher.Constraint("Vertical", 55, 2, 58, 2))
sketch1.addConstraint(Sketcher.Constraint("Vertical", 37, 2, 60, 2))
sketch1.addConstraint(Sketcher.Constraint("Vertical", 39, 2, 62, 2))
sketch1.addConstraint(Sketcher.Constraint("Vertical", 61, 2, 64, 2))
sketch1.addConstraint(Sketcher.Constraint("Vertical", 63, 2, 66, 2))
sketch1.addConstraint(Sketcher.Constraint("Vertical", 65, 2, 68, 2))
sketch1.addConstraint(Sketcher.Constraint("Vertical", 67, 2, 70, 2))
sketch1.addConstraint(Sketcher.Constraint("Vertical", 69, 2, 72, 2))
sketch1.addConstraint(Sketcher.Constraint("Vertical", 71, 2, 74, 2))
sketch1.addConstraint(Sketcher.Constraint("Vertical", 73, 2, 76, 2))
sketch1.addConstraint(Sketcher.Constraint("Vertical", 75, 2, 78, 2))
sketch1.addConstraint(Sketcher.Constraint("Equal", 18, 24))
sketch1.addConstraint(Sketcher.Constraint("Equal", 7, 9))
sketch1.addConstraint(Sketcher.Constraint("Equal", 11, 13))
sketch1.addConstraint(Sketcher.Constraint("Equal", 15, 17))
sketch1.addConstraint(Sketcher.Constraint("Equal", 19, 21))
sketch1.addConstraint(Sketcher.Constraint("Equal", 39, 41))
sketch1.addConstraint(Sketcher.Constraint("Equal", 43, 45))
sketch1.addConstraint(Sketcher.Constraint("Equal", 47, 49))
sketch1.addConstraint(Sketcher.Constraint("Equal", 51, 53))
sketch1.addConstraint(Sketcher.Constraint("Equal", 55, 57))
sketch1.addConstraint(Sketcher.Constraint("DistanceX", 0, 1, 0, 2, 80.0))
sketch1.addConstraint(Sketcher.Constraint("DistanceX", 4, 2, 4, 1, 34.0))
sketch1.addConstraint(Sketcher.Constraint("DistanceY", 1, 2, 1, 1, 400.0))
sketch1.addConstraint(Sketcher.Constraint("DistanceY", 5, 2, 5, 1, 35.6))
sketch1.addConstraint(Sketcher.Constraint("DistanceX", 4, 2, -1, 1, 38.0))
sketch1.addConstraint(Sketcher.Constraint("DistanceY", 56, 2, -1, 1, 4.0))
sketch1.addConstraint(Sketcher.Constraint("DistanceX", 20, 2, 20, 1, 72.0))
sketch1.addConstraint(Sketcher.Constraint("DistanceY", 16, 2, -1, 1, 202.0))
sketch1.addConstraint(Sketcher.Constraint("DistanceY", 21, 2, -1, 1, 396.0))
sketch1.addConstraint(Sketcher.Constraint("DistanceY", 41, 2, -1, 1, 198.0))
sketch1.addConstraint(Sketcher.Constraint("DistanceY", 4, 2, -1, 1, 320.8))
sketch1.addConstraint(Sketcher.Constraint("DistanceY", 8, 2, -1, 1, 281.2))
sketch1.addConstraint(Sketcher.Constraint("DistanceY", 12, 2, -1, 1, 241.6))
sketch1.addConstraint(Sketcher.Constraint("DistanceY", 44, 2, -1, 1, 122.8))
sketch1.addConstraint(Sketcher.Constraint("DistanceY", 48, 2, -1, 1, 83.2))
sketch1.addConstraint(Sketcher.Constraint("DistanceY", 52, 2, -1, 1, 43.6))
pad1 = body.newObject("PartDesign::Pad", "Pad")
pad1.Profile = sketch1
pad1.Length = 60
pad1.Reversed = True

sketch2 = body.newObject("Sketcher::SketchObject", "Sketch001")
sketch2.AttachmentSupport = (doc.getObject("XZ_Plane"), [""])
sketch2.MapMode = "FlatFace"
sketch2.AttachmentOffset = App.Placement(V(0, 0, -60), App.Rotation())
sketch2.addGeometry(Part.LineSegment(V(-80, -400, 0), V(-80, 0, 0)), False)
sketch2.addGeometry(Part.LineSegment(V(-80, 0, 0), V(0, 0, 0)), False)
sketch2.addGeometry(Part.LineSegment(V(0, 0, 0), V(0, -400, 0)), False)
sketch2.addGeometry(Part.LineSegment(V(0, -400, 0), V(-80, -400, 0)), False)
sketch2.addConstraint(Sketcher.Constraint("Coincident", 0, 2, 1, 1))
sketch2.addConstraint(Sketcher.Constraint("Coincident", 1, 2, 2, 1))
sketch2.addConstraint(Sketcher.Constraint("Coincident", 2, 2, 3, 1))
sketch2.addConstraint(Sketcher.Constraint("Coincident", 3, 2, 0, 1))
sketch2.addConstraint(Sketcher.Constraint("Vertical", 0))
sketch2.addConstraint(Sketcher.Constraint("Horizontal", 1))
sketch2.addConstraint(Sketcher.Constraint("Vertical", 2))
sketch2.addConstraint(Sketcher.Constraint("Horizontal", 3))
sketch2.addConstraint(Sketcher.Constraint("Coincident", 1, 2, -1, 1))
sketch2.addConstraint(Sketcher.Constraint("DistanceX", 1, 1, 1, 2, 80.0))
sketch2.addConstraint(Sketcher.Constraint("DistanceY", 0, 1, 0, 2, 400.0))
pad2 = body.newObject("PartDesign::Pad", "Pad001")
pad2.Profile = sketch2
pad2.Length = 4
pad2.Reversed = True

doc.recompute()
